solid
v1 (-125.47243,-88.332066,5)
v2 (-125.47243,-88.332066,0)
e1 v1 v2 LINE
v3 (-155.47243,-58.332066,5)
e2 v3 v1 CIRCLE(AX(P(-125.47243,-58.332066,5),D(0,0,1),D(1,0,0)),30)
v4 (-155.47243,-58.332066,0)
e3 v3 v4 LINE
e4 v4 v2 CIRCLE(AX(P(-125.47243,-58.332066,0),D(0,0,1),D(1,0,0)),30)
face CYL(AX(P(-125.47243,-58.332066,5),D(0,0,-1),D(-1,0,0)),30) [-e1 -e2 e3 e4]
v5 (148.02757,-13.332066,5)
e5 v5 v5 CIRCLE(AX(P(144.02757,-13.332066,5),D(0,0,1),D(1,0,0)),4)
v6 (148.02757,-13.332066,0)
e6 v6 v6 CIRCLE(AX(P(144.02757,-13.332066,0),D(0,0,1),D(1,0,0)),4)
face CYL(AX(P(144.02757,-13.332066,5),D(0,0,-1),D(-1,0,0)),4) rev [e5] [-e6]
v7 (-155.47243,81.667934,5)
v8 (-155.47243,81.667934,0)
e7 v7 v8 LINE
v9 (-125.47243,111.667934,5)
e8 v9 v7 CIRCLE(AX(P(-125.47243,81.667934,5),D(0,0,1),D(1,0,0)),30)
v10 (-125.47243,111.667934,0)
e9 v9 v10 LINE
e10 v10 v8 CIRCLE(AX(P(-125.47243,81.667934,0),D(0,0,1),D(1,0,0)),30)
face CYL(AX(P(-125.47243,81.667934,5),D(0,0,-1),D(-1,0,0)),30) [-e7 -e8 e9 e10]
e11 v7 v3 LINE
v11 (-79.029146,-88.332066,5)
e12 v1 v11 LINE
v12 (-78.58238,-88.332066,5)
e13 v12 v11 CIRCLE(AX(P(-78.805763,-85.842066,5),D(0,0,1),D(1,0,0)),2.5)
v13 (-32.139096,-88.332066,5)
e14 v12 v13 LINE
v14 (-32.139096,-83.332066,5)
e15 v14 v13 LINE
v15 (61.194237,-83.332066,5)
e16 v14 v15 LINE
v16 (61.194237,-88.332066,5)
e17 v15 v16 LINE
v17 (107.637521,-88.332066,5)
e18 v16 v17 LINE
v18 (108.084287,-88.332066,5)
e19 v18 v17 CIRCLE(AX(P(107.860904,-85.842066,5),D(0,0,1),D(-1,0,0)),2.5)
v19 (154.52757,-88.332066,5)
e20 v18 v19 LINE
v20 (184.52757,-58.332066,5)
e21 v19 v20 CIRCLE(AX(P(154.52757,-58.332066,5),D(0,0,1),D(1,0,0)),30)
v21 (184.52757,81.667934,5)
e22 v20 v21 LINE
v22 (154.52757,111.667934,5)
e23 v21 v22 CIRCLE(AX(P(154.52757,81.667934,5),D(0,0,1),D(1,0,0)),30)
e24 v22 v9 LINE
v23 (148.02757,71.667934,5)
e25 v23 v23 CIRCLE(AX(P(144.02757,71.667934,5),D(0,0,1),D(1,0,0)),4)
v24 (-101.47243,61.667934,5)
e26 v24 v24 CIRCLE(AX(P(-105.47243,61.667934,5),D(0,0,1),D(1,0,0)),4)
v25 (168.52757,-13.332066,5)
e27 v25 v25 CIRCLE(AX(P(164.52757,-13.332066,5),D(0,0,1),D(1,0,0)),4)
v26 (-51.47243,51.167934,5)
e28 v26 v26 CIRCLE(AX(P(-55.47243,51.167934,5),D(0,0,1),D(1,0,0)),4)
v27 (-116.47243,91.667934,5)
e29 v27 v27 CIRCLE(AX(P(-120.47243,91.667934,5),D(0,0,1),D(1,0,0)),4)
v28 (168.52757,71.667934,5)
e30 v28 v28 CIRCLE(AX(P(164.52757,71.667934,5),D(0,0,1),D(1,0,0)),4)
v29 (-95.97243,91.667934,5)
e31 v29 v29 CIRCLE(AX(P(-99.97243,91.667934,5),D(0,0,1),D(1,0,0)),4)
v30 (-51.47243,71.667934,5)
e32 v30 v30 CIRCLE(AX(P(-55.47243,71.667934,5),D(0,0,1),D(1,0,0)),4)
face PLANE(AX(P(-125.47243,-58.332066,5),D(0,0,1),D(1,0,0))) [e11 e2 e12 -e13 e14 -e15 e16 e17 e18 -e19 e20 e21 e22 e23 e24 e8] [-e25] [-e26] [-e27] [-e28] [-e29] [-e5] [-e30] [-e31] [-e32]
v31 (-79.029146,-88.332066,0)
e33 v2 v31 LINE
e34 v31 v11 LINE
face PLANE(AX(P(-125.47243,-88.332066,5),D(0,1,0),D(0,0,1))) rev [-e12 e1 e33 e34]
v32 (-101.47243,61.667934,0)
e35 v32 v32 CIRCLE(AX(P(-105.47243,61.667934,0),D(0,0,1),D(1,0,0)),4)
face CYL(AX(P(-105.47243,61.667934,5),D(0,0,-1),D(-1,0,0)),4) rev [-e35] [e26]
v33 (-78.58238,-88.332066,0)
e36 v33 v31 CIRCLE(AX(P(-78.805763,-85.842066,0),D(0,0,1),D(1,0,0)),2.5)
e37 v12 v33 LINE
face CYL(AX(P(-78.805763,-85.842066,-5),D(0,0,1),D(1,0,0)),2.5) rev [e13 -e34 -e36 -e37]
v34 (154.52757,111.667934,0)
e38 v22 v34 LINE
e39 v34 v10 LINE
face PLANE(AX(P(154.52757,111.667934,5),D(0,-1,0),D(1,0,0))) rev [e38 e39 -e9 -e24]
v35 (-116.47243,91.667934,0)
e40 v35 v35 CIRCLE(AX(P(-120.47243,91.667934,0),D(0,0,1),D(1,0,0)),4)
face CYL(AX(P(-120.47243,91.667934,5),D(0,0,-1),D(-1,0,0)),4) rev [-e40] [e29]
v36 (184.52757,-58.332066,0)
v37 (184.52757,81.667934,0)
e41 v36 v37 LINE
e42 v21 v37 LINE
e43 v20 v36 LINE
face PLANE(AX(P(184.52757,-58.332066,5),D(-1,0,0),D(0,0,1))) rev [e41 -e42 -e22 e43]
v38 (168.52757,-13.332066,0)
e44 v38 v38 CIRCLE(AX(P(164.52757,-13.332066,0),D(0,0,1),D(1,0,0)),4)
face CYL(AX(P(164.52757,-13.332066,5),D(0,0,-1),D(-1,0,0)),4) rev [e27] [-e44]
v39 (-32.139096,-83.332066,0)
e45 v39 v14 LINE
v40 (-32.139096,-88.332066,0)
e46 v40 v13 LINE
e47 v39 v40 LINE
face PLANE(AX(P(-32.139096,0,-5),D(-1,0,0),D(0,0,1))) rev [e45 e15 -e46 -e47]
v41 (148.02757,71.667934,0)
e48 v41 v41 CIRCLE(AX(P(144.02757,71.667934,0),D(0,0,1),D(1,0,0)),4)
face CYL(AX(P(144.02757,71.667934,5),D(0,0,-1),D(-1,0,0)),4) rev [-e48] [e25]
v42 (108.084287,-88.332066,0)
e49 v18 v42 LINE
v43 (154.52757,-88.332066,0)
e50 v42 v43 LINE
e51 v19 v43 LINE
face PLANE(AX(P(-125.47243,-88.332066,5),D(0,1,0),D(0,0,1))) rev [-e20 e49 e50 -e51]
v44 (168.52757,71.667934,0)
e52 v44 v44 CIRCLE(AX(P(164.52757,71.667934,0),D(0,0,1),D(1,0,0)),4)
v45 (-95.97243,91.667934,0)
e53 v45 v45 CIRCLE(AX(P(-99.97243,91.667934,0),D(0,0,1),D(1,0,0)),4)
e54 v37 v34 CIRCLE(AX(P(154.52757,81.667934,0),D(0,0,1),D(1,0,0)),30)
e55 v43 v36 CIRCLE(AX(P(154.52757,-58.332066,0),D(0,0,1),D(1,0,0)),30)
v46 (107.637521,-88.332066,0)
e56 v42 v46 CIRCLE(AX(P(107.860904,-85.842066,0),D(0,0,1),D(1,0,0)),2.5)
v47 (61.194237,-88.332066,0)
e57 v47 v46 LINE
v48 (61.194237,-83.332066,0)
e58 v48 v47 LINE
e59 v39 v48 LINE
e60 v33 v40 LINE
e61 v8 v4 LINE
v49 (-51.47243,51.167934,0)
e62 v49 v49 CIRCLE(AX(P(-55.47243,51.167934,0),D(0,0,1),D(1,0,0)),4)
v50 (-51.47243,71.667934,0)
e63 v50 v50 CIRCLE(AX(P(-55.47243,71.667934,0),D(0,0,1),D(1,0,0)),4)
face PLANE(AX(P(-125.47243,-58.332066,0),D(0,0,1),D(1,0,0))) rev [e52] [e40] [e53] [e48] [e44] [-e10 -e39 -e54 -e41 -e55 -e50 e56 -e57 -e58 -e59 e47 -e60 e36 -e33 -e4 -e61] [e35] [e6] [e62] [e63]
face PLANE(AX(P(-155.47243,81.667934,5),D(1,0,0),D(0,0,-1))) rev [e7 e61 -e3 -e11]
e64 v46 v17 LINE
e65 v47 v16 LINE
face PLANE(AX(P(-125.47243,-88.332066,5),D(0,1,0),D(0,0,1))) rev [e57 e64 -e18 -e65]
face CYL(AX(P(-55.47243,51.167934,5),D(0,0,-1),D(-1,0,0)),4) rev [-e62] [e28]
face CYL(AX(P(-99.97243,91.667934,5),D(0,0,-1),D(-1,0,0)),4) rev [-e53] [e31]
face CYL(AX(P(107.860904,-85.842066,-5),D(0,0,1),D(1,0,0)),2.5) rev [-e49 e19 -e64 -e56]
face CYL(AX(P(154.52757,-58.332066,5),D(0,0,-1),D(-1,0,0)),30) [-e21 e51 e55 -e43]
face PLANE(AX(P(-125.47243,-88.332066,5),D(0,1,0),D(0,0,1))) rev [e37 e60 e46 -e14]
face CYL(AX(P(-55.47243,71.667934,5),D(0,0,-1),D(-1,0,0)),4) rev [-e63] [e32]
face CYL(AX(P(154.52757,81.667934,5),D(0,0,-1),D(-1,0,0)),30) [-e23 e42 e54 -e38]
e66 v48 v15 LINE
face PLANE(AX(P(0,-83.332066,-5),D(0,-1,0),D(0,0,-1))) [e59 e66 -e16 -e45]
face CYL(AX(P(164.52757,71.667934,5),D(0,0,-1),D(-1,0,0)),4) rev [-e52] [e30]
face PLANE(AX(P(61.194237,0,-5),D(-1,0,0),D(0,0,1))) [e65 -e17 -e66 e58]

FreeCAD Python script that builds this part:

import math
import FreeCAD as App
import Part
import Sketcher

V = App.Vector
Q = App.Units.Quantity


def add_polygon(sketch, points):
    """Adds a closed chain of lines whose ends are joined by coincident constraints."""
    first, n = sketch.GeometryCount, len(points)
    for a, b in zip(points, points[1:] + points[:1]):
        sketch.addGeometry(Part.LineSegment(App.Vector(*a, 0), App.Vector(*b, 0)), False)
    for i in range(n):
        sketch.addConstraint(Sketcher.Constraint("Coincident", first + i, 2, first + (i + 1) % n, 1))

doc = App.newDocument("Part")
body = doc.addObject("PartDesign::Body", "Body")

sketch1 = doc.addObject("Sketcher::SketchObject", "Sketch")
body.addObject(sketch1)
sketch1.AttachmentSupport = (doc.XY_Plane, [""])
sketch1.MapMode = "FlatFace"
sketch1.addGeometry([
    Part.LineSegment(V(-125.5, -88.3, 0), V(154.5, -88.3, 0)),
    Part.ArcOfCircle(Part.Circle(V(154.5, -58.3, 0), V(0, 0, 1), 30), math.radians(-90), math.radians(0)),
    Part.LineSegment(V(184.5, -58.3, 0), V(184.5, 81.7, 0)),
    Part.ArcOfCircle(Part.Circle(V(154.5, 81.7, 0), V(0, 0, 1), 30), math.radians(0), math.radians(90)),
    Part.LineSegment(V(154.5, 111.7, 0), V(-125.5, 111.7, 0)),
    Part.ArcOfCircle(Part.Circle(V(-125.5, 81.7, 0), V(0, 0, 1), 30), math.radians(90), math.radians(180)),
    Part.LineSegment(V(-155.5, 81.7, 0), V(-155.5, -58.3, 0)),
    Part.ArcOfCircle(Part.Circle(V(-125.5, -58.3, 0), V(0, 0, 1), 30), math.radians(-180), math.radians(-90)),
    Part.Circle(V(144, -13.3, 0), V(0, 0, 1), 4),
    Part.Circle(V(164.5, -13.3, 0), V(0, 0, 1), 4),
    Part.Circle(V(-55.5, 51.2, 0), V(0, 0, 1), 4),
    Part.Circle(V(-105.5, 61.7, 0), V(0, 0, 1), 4),
    Part.Circle(V(-55.5, 71.7, 0), V(0, 0, 1), 4),
    Part.Circle(V(-120.5, 91.7, 0), V(0, 0, 1), 4),
    Part.Circle(V(-100, 91.7, 0), V(0, 0, 1), 4),
    Part.Circle(V(144, 71.7, 0), V(0, 0, 1), 4),
    Part.Circle(V(164.5, 71.7, 0), V(0, 0, 1), 4),
], False)
sketch1.addConstraint([
    Sketcher.Constraint("Tangent", 0, 2, 1, 1),
    Sketcher.Constraint("Tangent", 1, 2, 2, 1),
    Sketcher.Constraint("Tangent", 2, 2, 3, 1),
    Sketcher.Constraint("Tangent", 3, 2, 4, 1),
    Sketcher.Constraint("Tangent", 4, 2, 5, 1),
    Sketcher.Constraint("Tangent", 5, 2, 6, 1),
    Sketcher.Constraint("Tangent", 6, 2, 7, 1),
    Sketcher.Constraint("Tangent", 7, 2, 0, 1),
    Sketcher.Constraint("Horizontal", 0),
    Sketcher.Constraint("Vertical", 2),
    Sketcher.Constraint("Horizontal", 4),
    Sketcher.Constraint("Vertical", 6),
    Sketcher.Constraint("Equal", 1, 3),
    Sketcher.Constraint("Equal", 3, 5),
    Sketcher.Constraint("Equal", 5, 7),
    Sketcher.Constraint("Equal", 8, 9),
    Sketcher.Constraint("Equal", 9, 10),
    Sketcher.Constraint("Equal", 10, 11),
    Sketcher.Constraint("Equal", 11, 12),
    Sketcher.Constraint("Equal", 12, 13),
    Sketcher.Constraint("Equal", 13, 14),
    Sketcher.Constraint("Equal", 14, 15),
    Sketcher.Constraint("Equal", 15, 16),
    Sketcher.Constraint("Horizontal", 8, 3, 9, 3),
    Sketcher.Constraint("Horizontal", 13, 3, 14, 3),
    Sketcher.Constraint("Horizontal", 12, 3, 15, 3),
    Sketcher.Constraint("Horizontal", 15, 3, 16, 3),
    Sketcher.Constraint("Vertical", 10, 3, 12, 3),
    Sketcher.Constraint("Vertical", 8, 3, 15, 3),
    Sketcher.Constraint("Vertical", 9, 3, 16, 3),
    Sketcher.Constraint("Diameter", 8, Q("8 mm")),
    Sketcher.Constraint("Radius", 1, Q("30 mm")),
    Sketcher.Constraint("DistanceX", 0, 1, 0, 2, Q("280 mm")),
    Sketcher.Constraint("DistanceY", 2, 1, 2, 2, Q("140 mm")),
    Sketcher.Constraint("DistanceY", 1, 3, 8, 3, Q("45 mm")),
    Sketcher.Constraint("DistanceX", 1, 3, 9, 3, Q("10 mm")),
    Sketcher.Constraint("DistanceX", 5, 3, 10, 3, Q("70 mm")),
    Sketcher.Constraint("DistanceX", 5, 3, 11, 3, Q("20 mm")),
    Sketcher.Constraint("DistanceY", 11, 3, 5, 3, Q("20 mm")),
    Sketcher.Constraint("DistanceY", 11, 3, 12, 3, Q("10 mm")),
    Sketcher.Constraint("DistanceX", 5, 3, 13, 3, Q("5 mm")),
    Sketcher.Constraint("DistanceY", 5, 3, 13, 3, Q("10 mm")),
    Sketcher.Constraint("DistanceX", 8, 3, 1, 3, Q("10.5 mm")),
    Sketcher.Constraint("DistanceY", 10, 3, 5, 3, Q("30.5 mm")),
    Sketcher.Constraint("DistanceX", 13, 3, 14, 3, Q("20.5 mm")),
    Sketcher.Constraint("DistanceX", -1, 1, 1, 3, Q("154.52757 mm")),
    Sketcher.Constraint("DistanceY", 1, 3, -1, 1, Q("58.332066 mm")),
])
pad1 = doc.addObject("PartDesign::Pad", "Pad")
body.addObject(pad1)
pad1.Profile = sketch1
pad1.Length = 5

sketch2 = doc.addObject("Sketcher::SketchObject", "Sketch001")
body.addObject(sketch2)
sketch2.AttachmentSupport = (doc.XY_Plane, [""])
sketch2.MapMode = "FlatFace"
sketch2.AttachmentOffset = App.Placement(V(0, 0, 5), App.Rotation())
add_polygon(sketch2, [(-32, -83), (-32, -88), (61, -88), (61, -83)])
sketch2.addConstraint([
    Sketcher.Constraint("Vertical", 0),
    Sketcher.Constraint("Horizontal", 1),
    Sketcher.Constraint("Vertical", 2),
    Sketcher.Constraint("Horizontal", 3),
    Sketcher.Constraint("DistanceY", 0, 2, 0, 1, Q("5 mm")),
    Sketcher.Constraint("DistanceX", 1, 1, 1, 2, Q("93.333333 mm")),
    Sketcher.Constraint("DistanceX", 0, 2, -1, 1, Q("32.139096 mm")),
    Sketcher.Constraint("DistanceY", 0, 2, -1, 1, Q("88.332066 mm")),
])
pocket1 = doc.addObject("PartDesign::Pocket", "Pocket")
body.addObject(pocket1)
pocket1.Profile = sketch2
pocket1.Length = 10

sketch3 = doc.addObject("Sketcher::SketchObject", "Sketch002")
body.addObject(sketch3)
sketch3.AttachmentSupport = (doc.XY_Plane, [""])
sketch3.MapMode = "FlatFace"
sketch3.AttachmentOffset = App.Placement(V(0, 0, 5), App.Rotation())
sketch3.addGeometry([
    Part.Circle(V(-78.8, -85.8, 0), V(0, 0, 1), 2.5),
    Part.Circle(V(107.9, -85.8, 0), V(0, 0, 1), 2.5),
], False)
sketch3.addConstraint([
    Sketcher.Constraint("Equal", 0, 1),
    Sketcher.Constraint("Horizontal", 0, 3, 1, 3),
    Sketcher.Constraint("Diameter", 0, Q("5 mm")),
    Sketcher.Constraint("DistanceX", 0, 3, -1, 1, Q("78.805763 mm")),
    Sketcher.Constraint("DistanceY", 0, 3, -1, 1, Q("85.842066 mm")),
    Sketcher.Constraint("DistanceX", -1, 1, 1, 3, Q("107.860904 mm")),
])
pocket2 = doc.addObject("PartDesign::Pocket", "Pocket001")
body.addObject(pocket2)
pocket2.Profile = sketch3
pocket2.Length = 10

doc.recompute()
